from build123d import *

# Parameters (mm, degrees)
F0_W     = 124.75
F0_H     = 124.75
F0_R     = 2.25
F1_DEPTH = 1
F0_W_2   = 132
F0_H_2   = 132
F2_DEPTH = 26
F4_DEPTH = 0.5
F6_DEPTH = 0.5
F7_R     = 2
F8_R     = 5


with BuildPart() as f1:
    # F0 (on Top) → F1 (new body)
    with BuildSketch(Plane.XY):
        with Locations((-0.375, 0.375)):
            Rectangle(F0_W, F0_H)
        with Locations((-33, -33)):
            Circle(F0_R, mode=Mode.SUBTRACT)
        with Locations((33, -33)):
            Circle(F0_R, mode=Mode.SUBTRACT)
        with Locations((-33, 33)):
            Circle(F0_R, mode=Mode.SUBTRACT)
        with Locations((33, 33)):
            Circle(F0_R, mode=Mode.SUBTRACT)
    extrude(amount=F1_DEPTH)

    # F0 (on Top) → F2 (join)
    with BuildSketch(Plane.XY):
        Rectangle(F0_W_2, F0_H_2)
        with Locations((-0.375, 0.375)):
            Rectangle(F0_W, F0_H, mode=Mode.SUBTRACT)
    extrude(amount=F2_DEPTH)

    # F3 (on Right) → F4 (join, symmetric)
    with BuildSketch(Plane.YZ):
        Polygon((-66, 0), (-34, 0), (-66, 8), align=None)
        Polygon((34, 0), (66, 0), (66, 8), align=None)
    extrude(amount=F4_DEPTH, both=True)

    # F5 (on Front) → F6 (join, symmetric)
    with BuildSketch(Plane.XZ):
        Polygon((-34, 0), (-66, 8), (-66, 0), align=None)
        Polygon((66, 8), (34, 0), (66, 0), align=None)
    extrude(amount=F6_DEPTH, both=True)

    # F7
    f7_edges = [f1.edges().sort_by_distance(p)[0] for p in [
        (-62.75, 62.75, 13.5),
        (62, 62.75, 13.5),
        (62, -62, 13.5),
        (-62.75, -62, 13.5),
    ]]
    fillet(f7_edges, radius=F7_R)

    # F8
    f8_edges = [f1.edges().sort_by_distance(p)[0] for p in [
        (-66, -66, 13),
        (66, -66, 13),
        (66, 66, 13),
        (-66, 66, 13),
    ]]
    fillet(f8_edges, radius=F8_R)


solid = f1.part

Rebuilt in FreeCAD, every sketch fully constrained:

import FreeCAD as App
import Part
import Sketcher
Q = App.Units.Quantity


def edges_at(feature, points):
    """Names of the edges that pass closest to the given points."""
    edges = feature.Shape.Edges
    near = lambda p: min(range(len(edges)), key=lambda i: edges[i].distToShape(Part.Vertex(*p))[0])
    return sorted({f"Edge{near(p) + 1}" for p in points})

doc = App.newDocument("Part")
params = doc.addObject("Spreadsheet::Sheet", "Params")
for row, (alias, value) in enumerate([
    ("sketch1_diameter", "4.5 mm"),
    ("sketch1_width", "124.75 mm"),
    ("pad1_length", "1 mm"),
    ("sketch2_width", "132 mm"),
    ("sketch2_width2", "124.75 mm"),
    ("pad2_length", "26 mm"),
    ("sketch3_width", "32 mm"),
    ("sketch3_height", "8 mm"),
    ("pad3_length", "1 mm"),
    ("sketch4_width", "32 mm"),
    ("sketch4_height", "8 mm"),
    ("pad4_length", "1 mm"),
    ("fillet_radius", "2 mm"),
    ("fillet2_radius", "5 mm"),
], start=1):
    params.set(f"A{row}", alias)
    params.set(f"B{row}", "=" + value)
    params.setAlias(f"B{row}", alias)

body = doc.addObject("PartDesign::Body", "Body")

# Sketch on XY plane
sketch1 = doc.addObject("Sketcher::SketchObject", "Sketch")
body.addObject(sketch1)
sketch1.AttachmentSupport = (doc.XY_Plane, [""])
sketch1.MapMode = "FlatFace"
sketch1.addGeometry([
    Part.LineSegment(App.Vector(-62.75, 62.75, 0), App.Vector(-62.75, -62, 0)),  # 0
    Part.LineSegment(App.Vector(-62.75, -62, 0), App.Vector(62, -62, 0)),  # 1
    Part.LineSegment(App.Vector(62, -62, 0), App.Vector(62, 62.75, 0)),  # 2
    Part.LineSegment(App.Vector(62, 62.75, 0), App.Vector(-62.75, 62.75, 0)),  # 3
    Part.Circle(App.Vector(-33, -33, 0), App.Vector(0, 0, 1), 2.25),  # 4
    Part.Circle(App.Vector(33, -33, 0), App.Vector(0, 0, 1), 2.25),  # 5
    Part.Circle(App.Vector(-33, 33, 0), App.Vector(0, 0, 1), 2.25),  # 6
    Part.Circle(App.Vector(33, 33, 0), App.Vector(0, 0, 1), 2.25),  # 7
], False)
sketch1.addConstraint([
    Sketcher.Constraint("Coincident", 0, 2, 1, 1),
    Sketcher.Constraint("Coincident", 1, 2, 2, 1),
    Sketcher.Constraint("Coincident", 2, 2, 3, 1),
    Sketcher.Constraint("Coincident", 3, 2, 0, 1),
    Sketcher.Constraint("Vertical", 0),
    Sketcher.Constraint("Horizontal", 1),
    Sketcher.Constraint("Vertical", 2),
    Sketcher.Constraint("Horizontal", 3),
    Sketcher.Constraint("Equal", 4, 5),
    Sketcher.Constraint("Equal", 5, 6),
    Sketcher.Constraint("Equal", 6, 7),
    Sketcher.Constraint("Symmetric", 5, 3, 6, 3, -1, 1),
    Sketcher.Constraint("Symmetric", 4, 3, 7, 3, -1, 1),
    Sketcher.Constraint("Symmetric", 4, 3, 5, 3, -2),
    Sketcher.Constraint("Equal", 3, 0),
    Sketcher.Constraint("Diameter", 4, Q("4.5 mm")),
    Sketcher.Constraint("DistanceX", 4, 3, -1, 1, Q("33 mm")),
    Sketcher.Constraint("DistanceY", 4, 3, -1, 1, Q("33 mm")),
    Sketcher.Constraint("DistanceY", 0, 2, -1, 1, Q("62 mm")),
    Sketcher.Constraint("DistanceX", -1, 1, 1, 2, Q("62 mm")),
    Sketcher.Constraint("DistanceX", 1, 1, 1, 2, Q("124.75 mm")),
])
sketch1.setExpression("Constraints[15]", "Params.sketch1_diameter")
sketch1.setExpression("Constraints[20]", "Params.sketch1_width")
pad1 = doc.addObject("PartDesign::Pad", "Pad")
body.addObject(pad1)
pad1.Profile = sketch1
pad1.setExpression("Length", "Params.pad1_length")

# Sketch on XY plane
sketch2 = doc.addObject("Sketcher::SketchObject", "Sketch001")
body.addObject(sketch2)
sketch2.AttachmentSupport = (doc.XY_Plane, [""])
sketch2.MapMode = "FlatFace"
sketch2.addGeometry([
    Part.LineSegment(App.Vector(-66, 66, 0), App.Vector(-66, -66, 0)),  # 0
    Part.LineSegment(App.Vector(-66, -66, 0), App.Vector(66, -66, 0)),  # 1
    Part.LineSegment(App.Vector(66, -66, 0), App.Vector(66, 66, 0)),  # 2
    Part.LineSegment(App.Vector(66, 66, 0), App.Vector(-66, 66, 0)),  # 3
    Part.LineSegment(App.Vector(62, -62, 0), App.Vector(-62.75, -62, 0)),  # 4
    Part.LineSegment(App.Vector(-62.75, -62, 0), App.Vector(-62.75, 62.75, 0)),  # 5
    Part.LineSegment(App.Vector(-62.75, 62.75, 0), App.Vector(62, 62.75, 0)),  # 6
    Part.LineSegment(App.Vector(62, 62.75, 0), App.Vector(62, -62, 0)),  # 7
], False)
sketch2.addConstraint([
    Sketcher.Constraint("Coincident", 0, 2, 1, 1),
    Sketcher.Constraint("Coincident", 1, 2, 2, 1),
    Sketcher.Constraint("Coincident", 2, 2, 3, 1),
    Sketcher.Constraint("Coincident", 3, 2, 0, 1),
    Sketcher.Constraint("Coincident", 4, 2, 5, 1),
    Sketcher.Constraint("Coincident", 5, 2, 6, 1),
    Sketcher.Constraint("Coincident", 6, 2, 7, 1),
    Sketcher.Constraint("Coincident", 7, 2, 4, 1),
    Sketcher.Constraint("Vertical", 0),
    Sketcher.Constraint("Horizontal", 1),
    Sketcher.Constraint("Vertical", 2),
    Sketcher.Constraint("Horizontal", 3),
    Sketcher.Constraint("Horizontal", 4),
    Sketcher.Constraint("Vertical", 5),
    Sketcher.Constraint("Horizontal", 6),
    Sketcher.Constraint("Vertical", 7),
    Sketcher.Constraint("Symmetric", 0, 2, 2, 2, -1, 1),
    Sketcher.Constraint("Equal", 3, 0),
    Sketcher.Constraint("Equal", 6, 5),
    Sketcher.Constraint("DistanceX", 1, 1, 1, 2, Q("132 mm")),
    Sketcher.Constraint("DistanceY", 4, 2, -1, 1, Q("62 mm")),
    Sketcher.Constraint("DistanceX", -1, 1, 6, 2, Q("62 mm")),
    Sketcher.Constraint("DistanceX", 4, 2, 4, 1, Q("124.75 mm")),
])
sketch2.setExpression("Constraints[19]", "Params.sketch2_width")
sketch2.setExpression("Constraints[22]", "Params.sketch2_width2")
pad2 = doc.addObject("PartDesign::Pad", "Pad001")
body.addObject(pad2)
pad2.Profile = sketch2
pad2.setExpression("Length", "Params.pad2_length")

# Sketch on YZ plane
sketch3 = doc.addObject("Sketcher::SketchObject", "Sketch002")
body.addObject(sketch3)
sketch3.AttachmentSupport = (doc.YZ_Plane, [""])
sketch3.MapMode = "FlatFace"
sketch3.addGeometry([
    Part.LineSegment(App.Vector(-66, 0, 0), App.Vector(-34, 0, 0)),  # 0
    Part.LineSegment(App.Vector(-34, 0, 0), App.Vector(-66, 8, 0)),  # 1
    Part.LineSegment(App.Vector(-66, 8, 0), App.Vector(-66, 0, 0)),  # 2
    Part.LineSegment(App.Vector(34, 0, 0), App.Vector(66, 0, 0)),  # 3
    Part.LineSegment(App.Vector(66, 0, 0), App.Vector(66, 8, 0)),  # 4
    Part.LineSegment(App.Vector(66, 8, 0), App.Vector(34, 0, 0)),  # 5
], False)
sketch3.addConstraint([
    Sketcher.Constraint("Coincident", 0, 2, 1, 1),
    Sketcher.Constraint("Coincident", 1, 2, 2, 1),
    Sketcher.Constraint("Coincident", 2, 2, 0, 1),
    Sketcher.Constraint("Coincident", 3, 2, 4, 1),
    Sketcher.Constraint("Coincident", 4, 2, 5, 1),
    Sketcher.Constraint("Coincident", 5, 2, 3, 1),
    Sketcher.Constraint("Horizontal", 0),
    Sketcher.Constraint("Vertical", 2),
    Sketcher.Constraint("Horizontal", 3),
    Sketcher.Constraint("Vertical", 4),
    Sketcher.Constraint("Symmetric", 2, 2, 3, 2, -1, 1),
    Sketcher.Constraint("Symmetric", 0, 2, 5, 2, -2),
    Sketcher.Constraint("Horizontal", 1, 2, 4, 2),
    Sketcher.Constraint("DistanceX", 0, 1, 0, 2, Q("32 mm")),
    Sketcher.Constraint("DistanceY", 2, 2, 2, 1, Q("8 mm")),
    Sketcher.Constraint("DistanceX", 0, 2, -1, 1, Q("34 mm")),
])
sketch3.setExpression("Constraints[13]", "Params.sketch3_width")
sketch3.setExpression("Constraints[14]", "Params.sketch3_height")
pad3 = doc.addObject("PartDesign::Pad", "Pad002")
body.addObject(pad3)
pad3.Profile = sketch3
pad3.setExpression("Length", "Params.pad3_length")
pad3.Midplane = True

# Sketch on XZ plane
sketch4 = doc.addObject("Sketcher::SketchObject", "Sketch003")
body.addObject(sketch4)
sketch4.AttachmentSupport = (doc.XZ_Plane, [""])
sketch4.MapMode = "FlatFace"
sketch4.addGeometry([
    Part.LineSegment(App.Vector(-34, 0, 0), App.Vector(-66, 8, 0)),  # 0
    Part.LineSegment(App.Vector(-66, 8, 0), App.Vector(-66, 0, 0)),  # 1
    Part.LineSegment(App.Vector(-66, 0, 0), App.Vector(-34, 0, 0)),  # 2
    Part.LineSegment(App.Vector(66, 8, 0), App.Vector(34, 0, 0)),  # 3
    Part.LineSegment(App.Vector(34, 0, 0), App.Vector(66, 0, 0)),  # 4
    Part.LineSegment(App.Vector(66, 0, 0), App.Vector(66, 8, 0)),  # 5
], False)
sketch4.addConstraint([
    Sketcher.Constraint("Coincident", 0, 2, 1, 1),
    Sketcher.Constraint("Coincident", 1, 2, 2, 1),
    Sketcher.Constraint("Coincident", 2, 2, 0, 1),
    Sketcher.Constraint("Coincident", 3, 2, 4, 1),
    Sketcher.Constraint("Coincident", 4, 2, 5, 1),
    Sketcher.Constraint("Coincident", 5, 2, 3, 1),
    Sketcher.Constraint("Vertical", 1),
    Sketcher.Constraint("Horizontal", 2),
    Sketcher.Constraint("Horizontal", 4),
    Sketcher.Constraint("Vertical", 5),
    Sketcher.Constraint("Symmetric", 2, 2, 3, 2, -1, 1),
    Sketcher.Constraint("Symmetric", 1, 2, 4, 2, -2),
    Sketcher.Constraint("Horizontal", 0, 2, 5, 2),
    Sketcher.Constraint("DistanceX", 2, 1, 2, 2, Q("32 mm")),
    Sketcher.Constraint("DistanceY", 1, 2, 1, 1, Q("8 mm")),
    Sketcher.Constraint("DistanceX", 0, 2, -1, 1, Q("66 mm")),
])
sketch4.setExpression("Constraints[13]", "Params.sketch4_width")
sketch4.setExpression("Constraints[14]", "Params.sketch4_height")
pad4 = doc.addObject("PartDesign::Pad", "Pad003")
body.addObject(pad4)
pad4.Profile = sketch4
pad4.setExpression("Length", "Params.pad4_length")
pad4.Midplane = True
doc.recompute()

fillet = doc.addObject("PartDesign::Fillet", "Fillet")
body.addObject(fillet)
fillet.Base = (pad4, edges_at(pad4, [
    (-62.75, 62.75, 13.5),
    (62, 62.75, 13.5),
    (62, -62, 13.5),
    (-62.75, -62, 13.5),
]))
fillet.setExpression("Radius", "Params.fillet_radius")
doc.recompute()

fillet2 = doc.addObject("PartDesign::Fillet", "Fillet001")
body.addObject(fillet2)
fillet2.Base = (fillet, edges_at(fillet, [
    (-66, -66, 13),
    (66, -66, 13),
    (66, 66, 13),
    (-66, 66, 13),
]))
fillet2.setExpression("Radius", "Params.fillet2_radius")

doc.recompute()
